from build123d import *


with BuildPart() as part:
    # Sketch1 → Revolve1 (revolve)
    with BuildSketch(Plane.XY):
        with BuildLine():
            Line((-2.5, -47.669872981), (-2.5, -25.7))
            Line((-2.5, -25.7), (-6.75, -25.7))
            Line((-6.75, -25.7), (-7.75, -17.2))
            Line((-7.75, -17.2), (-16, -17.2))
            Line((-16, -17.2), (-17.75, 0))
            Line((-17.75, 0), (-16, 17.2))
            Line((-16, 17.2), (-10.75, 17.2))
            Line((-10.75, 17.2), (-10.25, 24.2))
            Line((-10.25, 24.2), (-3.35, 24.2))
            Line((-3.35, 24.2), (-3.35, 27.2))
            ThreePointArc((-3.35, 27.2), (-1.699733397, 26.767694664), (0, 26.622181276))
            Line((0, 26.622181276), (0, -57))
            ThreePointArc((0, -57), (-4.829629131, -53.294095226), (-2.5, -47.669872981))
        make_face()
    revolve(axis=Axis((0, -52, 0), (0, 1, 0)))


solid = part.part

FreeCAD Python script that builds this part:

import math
import FreeCAD as App
import Part
import Sketcher

V = App.Vector

doc = App.newDocument("Part")
params = doc.addObject("Spreadsheet::Sheet", "Params")
for row, (alias, value) in enumerate([
    ("sketch1_radius", "5 mm"),
    ("sketch1_radius2", "10 mm"),
    ("sketch1_height", "3 mm"),
    ("sketch1_width", "6.9 mm"),
    ("sketch1_width2", "5.25 mm"),
    ("revolution_angle", "360 deg"),
], start=1):
    params.set(f"A{row}", alias)
    params.set(f"B{row}", "=" + value)
    params.setAlias(f"B{row}", alias)

body = doc.addObject("PartDesign::Body", "Body")

# Sketch on XY plane
sketch1 = doc.addObject("Sketcher::SketchObject", "Sketch")
body.addObject(sketch1)
sketch1.AttachmentSupport = (doc.XY_Plane, [""])
sketch1.MapMode = "FlatFace"
sketch1.addGeometry(Part.LineSegment(V(-2.5, -25.7, 0), V(-2.5, -47.7, 0)), False)
sketch1.addGeometry(Part.ArcOfCircle(Part.Circle(V(0, -52, 0), V(0, 0, 1), 5), math.radians(120), math.radians(270)), False)
sketch1.addGeometry(Part.LineSegment(V(0, -57, 0), V(0, 26.6, 0)), False)
sketch1.addGeometry(Part.ArcOfCircle(Part.Circle(V(0, 36.6, 0), V(0, 0, 1), 10), math.radians(-109.57), math.radians(-90)), False)
sketch1.addGeometry(Part.LineSegment(V(-3.4, 27.2, 0), V(-3.4, 24.2, 0)), False)
sketch1.addGeometry(Part.LineSegment(V(-3.4, 24.2, 0), V(-10.2, 24.2, 0)), False)
sketch1.addGeometry(Part.LineSegment(V(-10.2, 24.2, 0), V(-10.8, 17.2, 0)), False)
sketch1.addGeometry(Part.LineSegment(V(-10.8, 17.2, 0), V(-16, 17.2, 0)), False)
sketch1.addGeometry(Part.LineSegment(V(-16, 17.2, 0), V(-17.8, 0, 0)), False)
sketch1.addGeometry(Part.LineSegment(V(-17.8, 0, 0), V(-16, -17.2, 0)), False)
sketch1.addGeometry(Part.LineSegment(V(-16, -17.2, 0), V(-7.8, -17.2, 0)), False)
sketch1.addGeometry(Part.LineSegment(V(-7.8, -17.2, 0), V(-6.8, -25.7, 0)), False)
sketch1.addGeometry(Part.LineSegment(V(-6.8, -25.7, 0), V(-2.5, -25.7, 0)), False)
sketch1.addConstraint(Sketcher.Constraint("Coincident", 0, 2, 1, 1))
sketch1.addConstraint(Sketcher.Constraint("Coincident", 1, 2, 2, 1))
sketch1.addConstraint(Sketcher.Constraint("Coincident", 2, 2, 3, 2))
sketch1.addConstraint(Sketcher.Constraint("Coincident", 3, 1, 4, 1))
sketch1.addConstraint(Sketcher.Constraint("Coincident", 4, 2, 5, 1))
sketch1.addConstraint(Sketcher.Constraint("Coincident", 5, 2, 6, 1))
sketch1.addConstraint(Sketcher.Constraint("Coincident", 6, 2, 7, 1))
sketch1.addConstraint(Sketcher.Constraint("Coincident", 7, 2, 8, 1))
sketch1.addConstraint(Sketcher.Constraint("Coincident", 8, 2, 9, 1))
sketch1.addConstraint(Sketcher.Constraint("Coincident", 9, 2, 10, 1))
sketch1.addConstraint(Sketcher.Constraint("Coincident", 10, 2, 11, 1))
sketch1.addConstraint(Sketcher.Constraint("Coincident", 11, 2, 12, 1))
sketch1.addConstraint(Sketcher.Constraint("Coincident", 12, 2, 0, 1))
sketch1.addConstraint(Sketcher.Constraint("Vertical", 0))
sketch1.addConstraint(Sketcher.Constraint("Vertical", 2))
sketch1.addConstraint(Sketcher.Constraint("Vertical", 4))
sketch1.addConstraint(Sketcher.Constraint("Horizontal", 5))
sketch1.addConstraint(Sketcher.Constraint("Horizontal", 7))
sketch1.addConstraint(Sketcher.Constraint("Horizontal", 10))
sketch1.addConstraint(Sketcher.Constraint("Horizontal", 12))
sketch1.addConstraint(Sketcher.Constraint("Symmetric", 7, 2, 9, 2, -1))
sketch1.addConstraint(Sketcher.Constraint("PointOnObject", 1, 3, -2))
sketch1.addConstraint(Sketcher.Constraint("PointOnObject", 3, 3, -2))
sketch1.addConstraint(Sketcher.Constraint("PointOnObject", 1, 2, -2))
sketch1.addConstraint(Sketcher.Constraint("PointOnObject", 8, 2, -1))
sketch1.addConstraint(Sketcher.Constraint("Radius", 1, 5.0))
sketch1.addConstraint(Sketcher.Constraint("Radius", 3, 10.0))
sketch1.addConstraint(Sketcher.Constraint("DistanceY", 4, 2, 4, 1, 3.0))
sketch1.addConstraint(Sketcher.Constraint("DistanceX", 5, 2, 5, 1, 6.9))
sketch1.addConstraint(Sketcher.Constraint("DistanceY", 1, 3, -1, 1, 52.0))
sketch1.addConstraint(Sketcher.Constraint("DistanceX", 7, 2, -1, 1, 16.0))
sketch1.addConstraint(Sketcher.Constraint("DistanceY", 6, 2, 5, 2, 7.0))
sketch1.addConstraint(Sketcher.Constraint("DistanceX", 8, 2, 6, 2, 7.0))
sketch1.addConstraint(Sketcher.Constraint("DistanceX", 8, 2, 10, 2, 10.0))
sketch1.addConstraint(Sketcher.Constraint("DistanceX", 10, 2, 11, 2, 1.0))
sketch1.addConstraint(Sketcher.Constraint("DistanceX", 7, 2, 7, 1, 5.25))
sketch1.addConstraint(Sketcher.Constraint("DistanceX", 12, 1, 12, 2, 4.25))
sketch1.addConstraint(Sketcher.Constraint("DistanceY", -1, 1, 3, 1, 27.2))
sketch1.addConstraint(Sketcher.Constraint("DistanceY", 11, 2, -1, 1, 25.7))
sketch1.addConstraint(Sketcher.Constraint("DistanceX", 6, 2, 5, 2, 0.5))
sketch1.setExpression("Constraints[25]", "Params.sketch1_radius")
sketch1.setExpression("Constraints[26]", "Params.sketch1_radius2")
sketch1.setExpression("Constraints[27]", "Params.sketch1_height")
sketch1.setExpression("Constraints[28]", "Params.sketch1_width")
sketch1.setExpression("Constraints[35]", "Params.sketch1_width2")
revolution = doc.addObject("PartDesign::Revolution", "Revolution")
body.addObject(revolution)
revolution.Profile = sketch1
revolution.ReferenceAxis = (sketch1, ["V_Axis"])
revolution.setExpression("Angle", "Params.revolution_angle")

doc.recompute()
